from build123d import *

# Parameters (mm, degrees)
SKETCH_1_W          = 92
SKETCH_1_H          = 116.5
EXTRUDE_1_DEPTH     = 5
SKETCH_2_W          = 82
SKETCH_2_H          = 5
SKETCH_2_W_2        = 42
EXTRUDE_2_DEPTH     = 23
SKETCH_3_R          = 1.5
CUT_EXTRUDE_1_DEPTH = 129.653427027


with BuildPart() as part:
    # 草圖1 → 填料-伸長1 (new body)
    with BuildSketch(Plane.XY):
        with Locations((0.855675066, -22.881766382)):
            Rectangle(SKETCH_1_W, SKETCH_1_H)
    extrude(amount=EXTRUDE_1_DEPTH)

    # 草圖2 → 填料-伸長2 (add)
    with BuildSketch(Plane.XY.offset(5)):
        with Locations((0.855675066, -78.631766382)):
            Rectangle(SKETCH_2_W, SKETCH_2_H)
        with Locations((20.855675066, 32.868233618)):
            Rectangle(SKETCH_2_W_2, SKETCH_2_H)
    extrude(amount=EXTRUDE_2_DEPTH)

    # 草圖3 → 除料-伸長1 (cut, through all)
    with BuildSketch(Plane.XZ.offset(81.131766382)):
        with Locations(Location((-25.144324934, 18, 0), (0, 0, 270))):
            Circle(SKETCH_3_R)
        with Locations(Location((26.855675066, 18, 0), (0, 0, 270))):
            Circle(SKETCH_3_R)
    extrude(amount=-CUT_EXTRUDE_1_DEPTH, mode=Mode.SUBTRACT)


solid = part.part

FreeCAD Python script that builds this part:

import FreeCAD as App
import Part
import Sketcher

V = App.Vector
Q = App.Units.Quantity


def add_polygon(sketch, points):
    """Adds a closed chain of lines whose ends are joined by coincident constraints."""
    first, n = sketch.GeometryCount, len(points)
    for a, b in zip(points, points[1:] + points[:1]):
        sketch.addGeometry(Part.LineSegment(App.Vector(*a, 0), App.Vector(*b, 0)), False)
    for i in range(n):
        sketch.addConstraint(Sketcher.Constraint("Coincident", first + i, 2, first + (i + 1) % n, 1))

doc = App.newDocument("Part")
body = doc.addObject("PartDesign::Body", "Body")

# Sketch on XY plane
sketch1 = doc.addObject("Sketcher::SketchObject", "Sketch")
body.addObject(sketch1)
sketch1.AttachmentSupport = (doc.XY_Plane, [""])
sketch1.MapMode = "FlatFace"
add_polygon(sketch1, [(-45.144325, 35.368234), (-45.144325, -81.131766), (46.855675, -81.131766), (46.855675, 35.368234)])  # lines 0-3
sketch1.addConstraint([
    Sketcher.Constraint("Vertical", 0),
    Sketcher.Constraint("Horizontal", 1),
    Sketcher.Constraint("Vertical", 2),
    Sketcher.Constraint("Horizontal", 3),
    Sketcher.Constraint("DistanceX", 1, 1, 1, 2, Q("92 mm")),
    Sketcher.Constraint("DistanceY", 0, 2, 0, 1, Q("116.5 mm")),
    Sketcher.Constraint("DistanceX", 0, 2, -1, 1, Q("45.144325 mm")),
    Sketcher.Constraint("DistanceY", 0, 2, -1, 1, Q("81.131766 mm")),
])
pad1 = doc.addObject("PartDesign::Pad", "Pad")
body.addObject(pad1)
pad1.Profile = sketch1
pad1.Length = 5

# Sketch on XY plane
sketch2 = doc.addObject("Sketcher::SketchObject", "Sketch001")
body.addObject(sketch2)
sketch2.AttachmentSupport = (doc.XY_Plane, [""])
sketch2.MapMode = "FlatFace"
sketch2.AttachmentOffset = App.Placement(V(0, 0, 5), App.Rotation())
add_polygon(sketch2, [(-40.144325, -76.131766), (-40.144325, -81.131766), (41.855675, -81.131766), (41.855675, -76.131766)])  # lines 0-3
add_polygon(sketch2, [(-0.144325, 35.368234), (-0.144325, 30.368234), (41.855675, 30.368234), (41.855675, 35.368234)])  # lines 4-7
sketch2.addConstraint([
    Sketcher.Constraint("Vertical", 0),
    Sketcher.Constraint("Horizontal", 1),
    Sketcher.Constraint("Vertical", 2),
    Sketcher.Constraint("Horizontal", 3),
    Sketcher.Constraint("Vertical", 4),
    Sketcher.Constraint("Horizontal", 5),
    Sketcher.Constraint("Vertical", 6),
    Sketcher.Constraint("Horizontal", 7),
    Sketcher.Constraint("Vertical", 2, 2, 5, 2),
    Sketcher.Constraint("Equal", 2, 4),
    Sketcher.Constraint("DistanceX", 1, 1, 1, 2, Q("82 mm")),
    Sketcher.Constraint("DistanceX", 5, 1, 5, 2, Q("42 mm")),
    Sketcher.Constraint("DistanceY", 0, 2, 0, 1, Q("5 mm")),
    Sketcher.Constraint("DistanceY", 3, 2, 4, 2, Q("106.5 mm")),
    Sketcher.Constraint("DistanceX", 0, 2, -1, 1, Q("40.144325 mm")),
    Sketcher.Constraint("DistanceY", 0, 2, -1, 1, Q("81.131766 mm")),
])
pad2 = doc.addObject("PartDesign::Pad", "Pad001")
body.addObject(pad2)
pad2.Profile = sketch2
pad2.Length = 23

# Sketch on XZ plane
sketch3 = doc.addObject("Sketcher::SketchObject", "Sketch002")
body.addObject(sketch3)
sketch3.AttachmentSupport = (doc.XZ_Plane, [""])
sketch3.MapMode = "FlatFace"
sketch3.AttachmentOffset = App.Placement(V(0, 0, 81.131766), App.Rotation())
sketch3.addGeometry([
    Part.Circle(V(-25.144325, 18, 0), V(0, 0, 1), 1.5),
    Part.Circle(V(26.855675, 18, 0), V(0, 0, 1), 1.5),
], False)
sketch3.addConstraint([
    Sketcher.Constraint("Equal", 0, 1),
    Sketcher.Constraint("Horizontal", 0, 3, 1, 3),
    Sketcher.Constraint("Diameter", 0, Q("3 mm")),
    Sketcher.Constraint("DistanceY", -1, 1, 0, 3, Q("18 mm")),
    Sketcher.Constraint("DistanceX", 0, 3, 1, 3, Q("52 mm")),
    Sketcher.Constraint("DistanceX", 0, 3, -1, 1, Q("25.144325 mm")),
])
pocket1 = doc.addObject("PartDesign::Pocket", "Pocket")
body.addObject(pocket1)
pocket1.Profile = sketch3
pocket1.Type = "ThroughAll"

doc.recompute()
